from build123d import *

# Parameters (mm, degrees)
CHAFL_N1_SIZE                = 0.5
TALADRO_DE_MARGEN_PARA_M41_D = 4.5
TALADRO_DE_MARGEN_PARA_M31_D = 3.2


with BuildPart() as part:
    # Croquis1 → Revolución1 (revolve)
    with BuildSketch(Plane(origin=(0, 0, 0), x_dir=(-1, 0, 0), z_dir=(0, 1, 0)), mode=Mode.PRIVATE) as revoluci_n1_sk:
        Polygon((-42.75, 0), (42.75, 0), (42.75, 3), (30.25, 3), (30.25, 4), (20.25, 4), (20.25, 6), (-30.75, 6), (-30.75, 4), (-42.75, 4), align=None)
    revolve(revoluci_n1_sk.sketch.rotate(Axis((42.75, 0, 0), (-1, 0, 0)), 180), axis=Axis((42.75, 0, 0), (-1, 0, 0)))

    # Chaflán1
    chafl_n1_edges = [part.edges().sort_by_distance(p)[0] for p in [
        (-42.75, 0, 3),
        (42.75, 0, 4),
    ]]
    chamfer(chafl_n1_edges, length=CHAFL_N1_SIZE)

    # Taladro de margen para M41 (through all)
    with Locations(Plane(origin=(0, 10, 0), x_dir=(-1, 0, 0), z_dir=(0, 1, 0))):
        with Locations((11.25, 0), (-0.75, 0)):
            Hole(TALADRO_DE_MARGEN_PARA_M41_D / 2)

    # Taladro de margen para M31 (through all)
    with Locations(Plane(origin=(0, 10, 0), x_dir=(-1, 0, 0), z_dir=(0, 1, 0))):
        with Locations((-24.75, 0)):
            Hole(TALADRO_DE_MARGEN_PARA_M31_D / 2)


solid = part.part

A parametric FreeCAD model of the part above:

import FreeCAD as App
import Part
import Sketcher
from FreeCAD import Vector


def edges_at(feature, points):
    """Names of the edges that pass closest to the given points."""
    edges = feature.Shape.Edges
    near = lambda p: min(range(len(edges)), key=lambda i: edges[i].distToShape(Part.Vertex(*p))[0])
    return sorted({f"Edge{near(p) + 1}" for p in points})

doc = App.newDocument("Part")
body = doc.addObject("PartDesign::Body", "Body")

# Sketch on XZ plane
sketch1 = body.newObject("Sketcher::SketchObject", "Sketch")
sketch1.AttachmentSupport = (doc.getObject("XZ_Plane"), [""])
sketch1.MapMode = "FlatFace"
sketch1.addGeometry(Part.LineSegment(Vector(42.8, 0, 0), Vector(-42.8, 0, 0)), False)
sketch1.addGeometry(Part.LineSegment(Vector(-42.8, 0, 0), Vector(-42.8, 3, 0)), False)
sketch1.addGeometry(Part.LineSegment(Vector(-42.8, 3, 0), Vector(-30.2, 3, 0)), False)
sketch1.addGeometry(Part.LineSegment(Vector(-30.2, 3, 0), Vector(-30.2, 4, 0)), False)
sketch1.addGeometry(Part.LineSegment(Vector(-30.2, 4, 0), Vector(-20.2, 4, 0)), False)
sketch1.addGeometry(Part.LineSegment(Vector(-20.2, 4, 0), Vector(-20.2, 6, 0)), False)
sketch1.addGeometry(Part.LineSegment(Vector(-20.2, 6, 0), Vector(30.8, 6, 0)), False)
sketch1.addGeometry(Part.LineSegment(Vector(30.8, 6, 0), Vector(30.8, 4, 0)), False)
sketch1.addGeometry(Part.LineSegment(Vector(30.8, 4, 0), Vector(42.8, 4, 0)), False)
sketch1.addGeometry(Part.LineSegment(Vector(42.8, 4, 0), Vector(42.8, 0, 0)), False)
sketch1.addConstraint(Sketcher.Constraint("Coincident", 0, 2, 1, 1))
sketch1.addConstraint(Sketcher.Constraint("Coincident", 1, 2, 2, 1))
sketch1.addConstraint(Sketcher.Constraint("Coincident", 2, 2, 3, 1))
sketch1.addConstraint(Sketcher.Constraint("Coincident", 3, 2, 4, 1))
sketch1.addConstraint(Sketcher.Constraint("Coincident", 4, 2, 5, 1))
sketch1.addConstraint(Sketcher.Constraint("Coincident", 5, 2, 6, 1))
sketch1.addConstraint(Sketcher.Constraint("Coincident", 6, 2, 7, 1))
sketch1.addConstraint(Sketcher.Constraint("Coincident", 7, 2, 8, 1))
sketch1.addConstraint(Sketcher.Constraint("Coincident", 8, 2, 9, 1))
sketch1.addConstraint(Sketcher.Constraint("Coincident", 9, 2, 0, 1))
sketch1.addConstraint(Sketcher.Constraint("Horizontal", 0))
sketch1.addConstraint(Sketcher.Constraint("Vertical", 1))
sketch1.addConstraint(Sketcher.Constraint("Horizontal", 2))
sketch1.addConstraint(Sketcher.Constraint("Vertical", 3))
sketch1.addConstraint(Sketcher.Constraint("Horizontal", 4))
sketch1.addConstraint(Sketcher.Constraint("Vertical", 5))
sketch1.addConstraint(Sketcher.Constraint("Horizontal", 6))
sketch1.addConstraint(Sketcher.Constraint("Vertical", 7))
sketch1.addConstraint(Sketcher.Constraint("Horizontal", 8))
sketch1.addConstraint(Sketcher.Constraint("Vertical", 9))
sketch1.addConstraint(Sketcher.Constraint("Symmetric", 0, 2, 9, 2, -1, 1))
sketch1.addConstraint(Sketcher.Constraint("Horizontal", 4, 2, 7, 2))
sketch1.addConstraint(Sketcher.Constraint("DistanceX", 4, 1, 4, 2, 10.0))
sketch1.addConstraint(Sketcher.Constraint("DistanceX", 6, 1, 6, 2, 51.0))
sketch1.addConstraint(Sketcher.Constraint("DistanceX", 8, 1, 8, 2, 12.0))
sketch1.addConstraint(Sketcher.Constraint("DistanceY", 1, 1, 1, 2, 3.0))
sketch1.addConstraint(Sketcher.Constraint("DistanceY", 3, 1, 3, 2, 1.0))
sketch1.addConstraint(Sketcher.Constraint("DistanceY", 5, 1, 5, 2, 2.0))
sketch1.addConstraint(Sketcher.Constraint("DistanceX", 0, 2, 0, 1, 85.5))
revolution = body.newObject("PartDesign::Revolution", "Revolution")
revolution.Profile = sketch1
revolution.ReferenceAxis = (sketch1, ["H_Axis"])
revolution.Angle = 360
doc.recompute()

chamfer = body.newObject("PartDesign::Chamfer", "Chamfer")
chamfer.Base = (revolution, edges_at(revolution, [(-42.75, 0, 3), (42.75, 0, 4)]))
chamfer.Size = 0.5

# Sketch on XZ plane
sketch2 = body.newObject("Sketcher::SketchObject", "Sketch001")
sketch2.AttachmentSupport = (doc.getObject("XZ_Plane"), [""])
sketch2.MapMode = "FlatFace"
sketch2.AttachmentOffset = App.Placement(Vector(0, 0, -10), App.Rotation())
sketch2.addGeometry(Part.Circle(Vector(-11.2, 0, 0), Vector(0, 0, 1), 2.2), False)
sketch2.addGeometry(Part.Circle(Vector(0.8, 0, 0), Vector(0, 0, 1), 2.2), False)
sketch2.addConstraint(Sketcher.Constraint("Equal", 0, 1))
sketch2.addConstraint(Sketcher.Constraint("PointOnObject", 0, 3, -1))
sketch2.addConstraint(Sketcher.Constraint("PointOnObject", 1, 3, -1))
sketch2.addConstraint(Sketcher.Constraint("Diameter", 0, 4.5))
sketch2.addConstraint(Sketcher.Constraint("DistanceX", 0, 3, 1, 3, 12.0))
sketch2.addConstraint(Sketcher.Constraint("DistanceX", 0, 3, -1, 1, 11.25))
doc.recompute()
hole = body.newObject("PartDesign::Hole", "Hole")
hole.Profile = sketch2
hole.ThreadType = "None"
hole.Diameter = 4.5
hole.DepthType = "ThroughAll"
hole.Reversed = True

# Sketch on XZ plane
sketch3 = body.newObject("Sketcher::SketchObject", "Sketch002")
sketch3.AttachmentSupport = (doc.getObject("XZ_Plane"), [""])
sketch3.MapMode = "FlatFace"
sketch3.AttachmentOffset = App.Placement(Vector(0, 0, -10), App.Rotation())
sketch3.addGeometry(Part.Circle(Vector(24.8, 0, 0), Vector(0, 0, 1), 1.6), False)
sketch3.addConstraint(Sketcher.Constraint("PointOnObject", 0, 3, -1))
sketch3.addConstraint(Sketcher.Constraint("Diameter", 0, 3.2))
sketch3.addConstraint(Sketcher.Constraint("DistanceX", -1, 1, 0, 3, 24.75))
doc.recompute()
hole2 = body.newObject("PartDesign::Hole", "Hole001")
hole2.Profile = sketch3
hole2.ThreadType = "None"
hole2.Diameter = 3.2
hole2.DepthType = "ThroughAll"
hole2.Reversed = True

doc.recompute()
